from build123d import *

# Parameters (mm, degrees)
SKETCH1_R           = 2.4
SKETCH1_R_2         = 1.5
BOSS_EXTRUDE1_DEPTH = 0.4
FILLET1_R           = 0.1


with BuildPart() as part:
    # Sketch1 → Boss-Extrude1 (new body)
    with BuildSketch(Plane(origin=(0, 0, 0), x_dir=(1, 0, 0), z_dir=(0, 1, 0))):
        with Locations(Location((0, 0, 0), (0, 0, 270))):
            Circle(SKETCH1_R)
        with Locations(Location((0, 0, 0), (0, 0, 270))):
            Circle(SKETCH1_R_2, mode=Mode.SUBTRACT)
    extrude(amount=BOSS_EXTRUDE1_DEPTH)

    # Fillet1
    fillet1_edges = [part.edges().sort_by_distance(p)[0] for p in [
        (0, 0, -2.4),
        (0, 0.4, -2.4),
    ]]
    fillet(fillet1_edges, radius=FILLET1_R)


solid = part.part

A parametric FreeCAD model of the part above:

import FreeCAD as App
import Part
import Sketcher
from FreeCAD import Vector
Q = App.Units.Quantity


def edges_at(feature, points):
    """Names of the edges that pass closest to the given points."""
    edges = feature.Shape.Edges
    near = lambda p: min(range(len(edges)), key=lambda i: edges[i].distToShape(Part.Vertex(*p))[0])
    return sorted({f"Edge{near(p) + 1}" for p in points})

doc = App.newDocument("Part")
body = doc.addObject("PartDesign::Body", "Body")

sketch1 = doc.addObject("Sketcher::SketchObject", "Sketch")
body.addObject(sketch1)
sketch1.AttachmentSupport = (doc.XZ_Plane, [""])
sketch1.MapMode = "FlatFace"
sketch1.addGeometry([
    Part.Circle(Vector(0, 0, 0), Vector(0, 0, 1), 2.4),
    Part.Circle(Vector(0, 0, 0), Vector(0, 0, 1), 1.5),
], False)
sketch1.addConstraint([
    Sketcher.Constraint("Coincident", 0, 3, -1, 1),
    Sketcher.Constraint("Coincident", 1, 3, -1, 1),
    Sketcher.Constraint("Diameter", 1, Q("3 mm")),
    Sketcher.Constraint("Diameter", 0, Q("4.8 mm")),
])
pad1 = doc.addObject("PartDesign::Pad", "Pad")
body.addObject(pad1)
pad1.Profile = sketch1
pad1.Length = 0.4
pad1.Reversed = True
doc.recompute()

fillet = doc.addObject("PartDesign::Fillet", "Fillet")
body.addObject(fillet)
fillet.Base = (pad1, edges_at(pad1, [(0, 0, -2.4), (0, 0.4, -2.4)]))
fillet.Radius = 0.1

doc.recompute()
